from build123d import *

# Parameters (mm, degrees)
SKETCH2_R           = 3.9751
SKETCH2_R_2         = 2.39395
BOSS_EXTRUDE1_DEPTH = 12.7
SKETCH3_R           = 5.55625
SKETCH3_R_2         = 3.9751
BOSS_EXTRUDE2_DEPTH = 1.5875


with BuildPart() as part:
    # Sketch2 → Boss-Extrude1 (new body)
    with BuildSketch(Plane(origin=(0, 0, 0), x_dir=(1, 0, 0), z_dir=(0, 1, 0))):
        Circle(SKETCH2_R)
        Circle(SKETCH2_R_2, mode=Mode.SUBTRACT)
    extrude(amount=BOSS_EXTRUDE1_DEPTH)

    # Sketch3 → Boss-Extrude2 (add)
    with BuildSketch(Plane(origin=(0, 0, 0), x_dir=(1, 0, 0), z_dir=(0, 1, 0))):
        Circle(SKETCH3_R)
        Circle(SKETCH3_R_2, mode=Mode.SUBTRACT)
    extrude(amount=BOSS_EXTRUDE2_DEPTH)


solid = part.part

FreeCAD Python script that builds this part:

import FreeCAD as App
import Part
import Sketcher
Q = App.Units.Quantity

doc = App.newDocument("Part")
body = doc.addObject("PartDesign::Body", "Body")

# Sketch on XZ plane
sketch1 = body.newObject("Sketcher::SketchObject", "Sketch")
sketch1.AttachmentSupport = (doc.getObject("XZ_Plane"), [""])
sketch1.MapMode = "FlatFace"
sketch1.addGeometry([
    Part.Circle(App.Vector(0, 0, 0), App.Vector(0, 0, 1), 3.9751),
    Part.Circle(App.Vector(0, 0, 0), App.Vector(0, 0, 1), 2.39395),
], False)
sketch1.addConstraint([
    Sketcher.Constraint("Coincident", 0, 3, -1, 1),
    Sketcher.Constraint("Coincident", 1, 3, -1, 1),
    Sketcher.Constraint("Diameter", 0, Q("0.313 in")),
    Sketcher.Constraint("Diameter", 1, Q("0.1885 in")),
])
pad1 = body.newObject("PartDesign::Pad", "Pad")
pad1.Profile = sketch1
pad1.Length = Q("0.5 in")
pad1.Reversed = True

# Sketch on XZ plane
sketch2 = body.newObject("Sketcher::SketchObject", "Sketch001")
sketch2.AttachmentSupport = (doc.getObject("XZ_Plane"), [""])
sketch2.MapMode = "FlatFace"
sketch2.addGeometry([
    Part.Circle(App.Vector(0, 0, 0), App.Vector(0, 0, 1), 5.55625),
    Part.Circle(App.Vector(0, 0, 0), App.Vector(0, 0, 1), 3.9751),
], False)
sketch2.addConstraint([
    Sketcher.Constraint("Coincident", 0, 3, -1, 1),
    Sketcher.Constraint("Coincident", 1, 3, -1, 1),
    Sketcher.Constraint("Diameter", 0, Q("0.4375 in")),
    Sketcher.Constraint("Diameter", 1, Q("0.313 in")),
])
pad2 = body.newObject("PartDesign::Pad", "Pad001")
pad2.Profile = sketch2
pad2.Length = Q("0.0625 in")
pad2.Reversed = True

doc.recompute()
